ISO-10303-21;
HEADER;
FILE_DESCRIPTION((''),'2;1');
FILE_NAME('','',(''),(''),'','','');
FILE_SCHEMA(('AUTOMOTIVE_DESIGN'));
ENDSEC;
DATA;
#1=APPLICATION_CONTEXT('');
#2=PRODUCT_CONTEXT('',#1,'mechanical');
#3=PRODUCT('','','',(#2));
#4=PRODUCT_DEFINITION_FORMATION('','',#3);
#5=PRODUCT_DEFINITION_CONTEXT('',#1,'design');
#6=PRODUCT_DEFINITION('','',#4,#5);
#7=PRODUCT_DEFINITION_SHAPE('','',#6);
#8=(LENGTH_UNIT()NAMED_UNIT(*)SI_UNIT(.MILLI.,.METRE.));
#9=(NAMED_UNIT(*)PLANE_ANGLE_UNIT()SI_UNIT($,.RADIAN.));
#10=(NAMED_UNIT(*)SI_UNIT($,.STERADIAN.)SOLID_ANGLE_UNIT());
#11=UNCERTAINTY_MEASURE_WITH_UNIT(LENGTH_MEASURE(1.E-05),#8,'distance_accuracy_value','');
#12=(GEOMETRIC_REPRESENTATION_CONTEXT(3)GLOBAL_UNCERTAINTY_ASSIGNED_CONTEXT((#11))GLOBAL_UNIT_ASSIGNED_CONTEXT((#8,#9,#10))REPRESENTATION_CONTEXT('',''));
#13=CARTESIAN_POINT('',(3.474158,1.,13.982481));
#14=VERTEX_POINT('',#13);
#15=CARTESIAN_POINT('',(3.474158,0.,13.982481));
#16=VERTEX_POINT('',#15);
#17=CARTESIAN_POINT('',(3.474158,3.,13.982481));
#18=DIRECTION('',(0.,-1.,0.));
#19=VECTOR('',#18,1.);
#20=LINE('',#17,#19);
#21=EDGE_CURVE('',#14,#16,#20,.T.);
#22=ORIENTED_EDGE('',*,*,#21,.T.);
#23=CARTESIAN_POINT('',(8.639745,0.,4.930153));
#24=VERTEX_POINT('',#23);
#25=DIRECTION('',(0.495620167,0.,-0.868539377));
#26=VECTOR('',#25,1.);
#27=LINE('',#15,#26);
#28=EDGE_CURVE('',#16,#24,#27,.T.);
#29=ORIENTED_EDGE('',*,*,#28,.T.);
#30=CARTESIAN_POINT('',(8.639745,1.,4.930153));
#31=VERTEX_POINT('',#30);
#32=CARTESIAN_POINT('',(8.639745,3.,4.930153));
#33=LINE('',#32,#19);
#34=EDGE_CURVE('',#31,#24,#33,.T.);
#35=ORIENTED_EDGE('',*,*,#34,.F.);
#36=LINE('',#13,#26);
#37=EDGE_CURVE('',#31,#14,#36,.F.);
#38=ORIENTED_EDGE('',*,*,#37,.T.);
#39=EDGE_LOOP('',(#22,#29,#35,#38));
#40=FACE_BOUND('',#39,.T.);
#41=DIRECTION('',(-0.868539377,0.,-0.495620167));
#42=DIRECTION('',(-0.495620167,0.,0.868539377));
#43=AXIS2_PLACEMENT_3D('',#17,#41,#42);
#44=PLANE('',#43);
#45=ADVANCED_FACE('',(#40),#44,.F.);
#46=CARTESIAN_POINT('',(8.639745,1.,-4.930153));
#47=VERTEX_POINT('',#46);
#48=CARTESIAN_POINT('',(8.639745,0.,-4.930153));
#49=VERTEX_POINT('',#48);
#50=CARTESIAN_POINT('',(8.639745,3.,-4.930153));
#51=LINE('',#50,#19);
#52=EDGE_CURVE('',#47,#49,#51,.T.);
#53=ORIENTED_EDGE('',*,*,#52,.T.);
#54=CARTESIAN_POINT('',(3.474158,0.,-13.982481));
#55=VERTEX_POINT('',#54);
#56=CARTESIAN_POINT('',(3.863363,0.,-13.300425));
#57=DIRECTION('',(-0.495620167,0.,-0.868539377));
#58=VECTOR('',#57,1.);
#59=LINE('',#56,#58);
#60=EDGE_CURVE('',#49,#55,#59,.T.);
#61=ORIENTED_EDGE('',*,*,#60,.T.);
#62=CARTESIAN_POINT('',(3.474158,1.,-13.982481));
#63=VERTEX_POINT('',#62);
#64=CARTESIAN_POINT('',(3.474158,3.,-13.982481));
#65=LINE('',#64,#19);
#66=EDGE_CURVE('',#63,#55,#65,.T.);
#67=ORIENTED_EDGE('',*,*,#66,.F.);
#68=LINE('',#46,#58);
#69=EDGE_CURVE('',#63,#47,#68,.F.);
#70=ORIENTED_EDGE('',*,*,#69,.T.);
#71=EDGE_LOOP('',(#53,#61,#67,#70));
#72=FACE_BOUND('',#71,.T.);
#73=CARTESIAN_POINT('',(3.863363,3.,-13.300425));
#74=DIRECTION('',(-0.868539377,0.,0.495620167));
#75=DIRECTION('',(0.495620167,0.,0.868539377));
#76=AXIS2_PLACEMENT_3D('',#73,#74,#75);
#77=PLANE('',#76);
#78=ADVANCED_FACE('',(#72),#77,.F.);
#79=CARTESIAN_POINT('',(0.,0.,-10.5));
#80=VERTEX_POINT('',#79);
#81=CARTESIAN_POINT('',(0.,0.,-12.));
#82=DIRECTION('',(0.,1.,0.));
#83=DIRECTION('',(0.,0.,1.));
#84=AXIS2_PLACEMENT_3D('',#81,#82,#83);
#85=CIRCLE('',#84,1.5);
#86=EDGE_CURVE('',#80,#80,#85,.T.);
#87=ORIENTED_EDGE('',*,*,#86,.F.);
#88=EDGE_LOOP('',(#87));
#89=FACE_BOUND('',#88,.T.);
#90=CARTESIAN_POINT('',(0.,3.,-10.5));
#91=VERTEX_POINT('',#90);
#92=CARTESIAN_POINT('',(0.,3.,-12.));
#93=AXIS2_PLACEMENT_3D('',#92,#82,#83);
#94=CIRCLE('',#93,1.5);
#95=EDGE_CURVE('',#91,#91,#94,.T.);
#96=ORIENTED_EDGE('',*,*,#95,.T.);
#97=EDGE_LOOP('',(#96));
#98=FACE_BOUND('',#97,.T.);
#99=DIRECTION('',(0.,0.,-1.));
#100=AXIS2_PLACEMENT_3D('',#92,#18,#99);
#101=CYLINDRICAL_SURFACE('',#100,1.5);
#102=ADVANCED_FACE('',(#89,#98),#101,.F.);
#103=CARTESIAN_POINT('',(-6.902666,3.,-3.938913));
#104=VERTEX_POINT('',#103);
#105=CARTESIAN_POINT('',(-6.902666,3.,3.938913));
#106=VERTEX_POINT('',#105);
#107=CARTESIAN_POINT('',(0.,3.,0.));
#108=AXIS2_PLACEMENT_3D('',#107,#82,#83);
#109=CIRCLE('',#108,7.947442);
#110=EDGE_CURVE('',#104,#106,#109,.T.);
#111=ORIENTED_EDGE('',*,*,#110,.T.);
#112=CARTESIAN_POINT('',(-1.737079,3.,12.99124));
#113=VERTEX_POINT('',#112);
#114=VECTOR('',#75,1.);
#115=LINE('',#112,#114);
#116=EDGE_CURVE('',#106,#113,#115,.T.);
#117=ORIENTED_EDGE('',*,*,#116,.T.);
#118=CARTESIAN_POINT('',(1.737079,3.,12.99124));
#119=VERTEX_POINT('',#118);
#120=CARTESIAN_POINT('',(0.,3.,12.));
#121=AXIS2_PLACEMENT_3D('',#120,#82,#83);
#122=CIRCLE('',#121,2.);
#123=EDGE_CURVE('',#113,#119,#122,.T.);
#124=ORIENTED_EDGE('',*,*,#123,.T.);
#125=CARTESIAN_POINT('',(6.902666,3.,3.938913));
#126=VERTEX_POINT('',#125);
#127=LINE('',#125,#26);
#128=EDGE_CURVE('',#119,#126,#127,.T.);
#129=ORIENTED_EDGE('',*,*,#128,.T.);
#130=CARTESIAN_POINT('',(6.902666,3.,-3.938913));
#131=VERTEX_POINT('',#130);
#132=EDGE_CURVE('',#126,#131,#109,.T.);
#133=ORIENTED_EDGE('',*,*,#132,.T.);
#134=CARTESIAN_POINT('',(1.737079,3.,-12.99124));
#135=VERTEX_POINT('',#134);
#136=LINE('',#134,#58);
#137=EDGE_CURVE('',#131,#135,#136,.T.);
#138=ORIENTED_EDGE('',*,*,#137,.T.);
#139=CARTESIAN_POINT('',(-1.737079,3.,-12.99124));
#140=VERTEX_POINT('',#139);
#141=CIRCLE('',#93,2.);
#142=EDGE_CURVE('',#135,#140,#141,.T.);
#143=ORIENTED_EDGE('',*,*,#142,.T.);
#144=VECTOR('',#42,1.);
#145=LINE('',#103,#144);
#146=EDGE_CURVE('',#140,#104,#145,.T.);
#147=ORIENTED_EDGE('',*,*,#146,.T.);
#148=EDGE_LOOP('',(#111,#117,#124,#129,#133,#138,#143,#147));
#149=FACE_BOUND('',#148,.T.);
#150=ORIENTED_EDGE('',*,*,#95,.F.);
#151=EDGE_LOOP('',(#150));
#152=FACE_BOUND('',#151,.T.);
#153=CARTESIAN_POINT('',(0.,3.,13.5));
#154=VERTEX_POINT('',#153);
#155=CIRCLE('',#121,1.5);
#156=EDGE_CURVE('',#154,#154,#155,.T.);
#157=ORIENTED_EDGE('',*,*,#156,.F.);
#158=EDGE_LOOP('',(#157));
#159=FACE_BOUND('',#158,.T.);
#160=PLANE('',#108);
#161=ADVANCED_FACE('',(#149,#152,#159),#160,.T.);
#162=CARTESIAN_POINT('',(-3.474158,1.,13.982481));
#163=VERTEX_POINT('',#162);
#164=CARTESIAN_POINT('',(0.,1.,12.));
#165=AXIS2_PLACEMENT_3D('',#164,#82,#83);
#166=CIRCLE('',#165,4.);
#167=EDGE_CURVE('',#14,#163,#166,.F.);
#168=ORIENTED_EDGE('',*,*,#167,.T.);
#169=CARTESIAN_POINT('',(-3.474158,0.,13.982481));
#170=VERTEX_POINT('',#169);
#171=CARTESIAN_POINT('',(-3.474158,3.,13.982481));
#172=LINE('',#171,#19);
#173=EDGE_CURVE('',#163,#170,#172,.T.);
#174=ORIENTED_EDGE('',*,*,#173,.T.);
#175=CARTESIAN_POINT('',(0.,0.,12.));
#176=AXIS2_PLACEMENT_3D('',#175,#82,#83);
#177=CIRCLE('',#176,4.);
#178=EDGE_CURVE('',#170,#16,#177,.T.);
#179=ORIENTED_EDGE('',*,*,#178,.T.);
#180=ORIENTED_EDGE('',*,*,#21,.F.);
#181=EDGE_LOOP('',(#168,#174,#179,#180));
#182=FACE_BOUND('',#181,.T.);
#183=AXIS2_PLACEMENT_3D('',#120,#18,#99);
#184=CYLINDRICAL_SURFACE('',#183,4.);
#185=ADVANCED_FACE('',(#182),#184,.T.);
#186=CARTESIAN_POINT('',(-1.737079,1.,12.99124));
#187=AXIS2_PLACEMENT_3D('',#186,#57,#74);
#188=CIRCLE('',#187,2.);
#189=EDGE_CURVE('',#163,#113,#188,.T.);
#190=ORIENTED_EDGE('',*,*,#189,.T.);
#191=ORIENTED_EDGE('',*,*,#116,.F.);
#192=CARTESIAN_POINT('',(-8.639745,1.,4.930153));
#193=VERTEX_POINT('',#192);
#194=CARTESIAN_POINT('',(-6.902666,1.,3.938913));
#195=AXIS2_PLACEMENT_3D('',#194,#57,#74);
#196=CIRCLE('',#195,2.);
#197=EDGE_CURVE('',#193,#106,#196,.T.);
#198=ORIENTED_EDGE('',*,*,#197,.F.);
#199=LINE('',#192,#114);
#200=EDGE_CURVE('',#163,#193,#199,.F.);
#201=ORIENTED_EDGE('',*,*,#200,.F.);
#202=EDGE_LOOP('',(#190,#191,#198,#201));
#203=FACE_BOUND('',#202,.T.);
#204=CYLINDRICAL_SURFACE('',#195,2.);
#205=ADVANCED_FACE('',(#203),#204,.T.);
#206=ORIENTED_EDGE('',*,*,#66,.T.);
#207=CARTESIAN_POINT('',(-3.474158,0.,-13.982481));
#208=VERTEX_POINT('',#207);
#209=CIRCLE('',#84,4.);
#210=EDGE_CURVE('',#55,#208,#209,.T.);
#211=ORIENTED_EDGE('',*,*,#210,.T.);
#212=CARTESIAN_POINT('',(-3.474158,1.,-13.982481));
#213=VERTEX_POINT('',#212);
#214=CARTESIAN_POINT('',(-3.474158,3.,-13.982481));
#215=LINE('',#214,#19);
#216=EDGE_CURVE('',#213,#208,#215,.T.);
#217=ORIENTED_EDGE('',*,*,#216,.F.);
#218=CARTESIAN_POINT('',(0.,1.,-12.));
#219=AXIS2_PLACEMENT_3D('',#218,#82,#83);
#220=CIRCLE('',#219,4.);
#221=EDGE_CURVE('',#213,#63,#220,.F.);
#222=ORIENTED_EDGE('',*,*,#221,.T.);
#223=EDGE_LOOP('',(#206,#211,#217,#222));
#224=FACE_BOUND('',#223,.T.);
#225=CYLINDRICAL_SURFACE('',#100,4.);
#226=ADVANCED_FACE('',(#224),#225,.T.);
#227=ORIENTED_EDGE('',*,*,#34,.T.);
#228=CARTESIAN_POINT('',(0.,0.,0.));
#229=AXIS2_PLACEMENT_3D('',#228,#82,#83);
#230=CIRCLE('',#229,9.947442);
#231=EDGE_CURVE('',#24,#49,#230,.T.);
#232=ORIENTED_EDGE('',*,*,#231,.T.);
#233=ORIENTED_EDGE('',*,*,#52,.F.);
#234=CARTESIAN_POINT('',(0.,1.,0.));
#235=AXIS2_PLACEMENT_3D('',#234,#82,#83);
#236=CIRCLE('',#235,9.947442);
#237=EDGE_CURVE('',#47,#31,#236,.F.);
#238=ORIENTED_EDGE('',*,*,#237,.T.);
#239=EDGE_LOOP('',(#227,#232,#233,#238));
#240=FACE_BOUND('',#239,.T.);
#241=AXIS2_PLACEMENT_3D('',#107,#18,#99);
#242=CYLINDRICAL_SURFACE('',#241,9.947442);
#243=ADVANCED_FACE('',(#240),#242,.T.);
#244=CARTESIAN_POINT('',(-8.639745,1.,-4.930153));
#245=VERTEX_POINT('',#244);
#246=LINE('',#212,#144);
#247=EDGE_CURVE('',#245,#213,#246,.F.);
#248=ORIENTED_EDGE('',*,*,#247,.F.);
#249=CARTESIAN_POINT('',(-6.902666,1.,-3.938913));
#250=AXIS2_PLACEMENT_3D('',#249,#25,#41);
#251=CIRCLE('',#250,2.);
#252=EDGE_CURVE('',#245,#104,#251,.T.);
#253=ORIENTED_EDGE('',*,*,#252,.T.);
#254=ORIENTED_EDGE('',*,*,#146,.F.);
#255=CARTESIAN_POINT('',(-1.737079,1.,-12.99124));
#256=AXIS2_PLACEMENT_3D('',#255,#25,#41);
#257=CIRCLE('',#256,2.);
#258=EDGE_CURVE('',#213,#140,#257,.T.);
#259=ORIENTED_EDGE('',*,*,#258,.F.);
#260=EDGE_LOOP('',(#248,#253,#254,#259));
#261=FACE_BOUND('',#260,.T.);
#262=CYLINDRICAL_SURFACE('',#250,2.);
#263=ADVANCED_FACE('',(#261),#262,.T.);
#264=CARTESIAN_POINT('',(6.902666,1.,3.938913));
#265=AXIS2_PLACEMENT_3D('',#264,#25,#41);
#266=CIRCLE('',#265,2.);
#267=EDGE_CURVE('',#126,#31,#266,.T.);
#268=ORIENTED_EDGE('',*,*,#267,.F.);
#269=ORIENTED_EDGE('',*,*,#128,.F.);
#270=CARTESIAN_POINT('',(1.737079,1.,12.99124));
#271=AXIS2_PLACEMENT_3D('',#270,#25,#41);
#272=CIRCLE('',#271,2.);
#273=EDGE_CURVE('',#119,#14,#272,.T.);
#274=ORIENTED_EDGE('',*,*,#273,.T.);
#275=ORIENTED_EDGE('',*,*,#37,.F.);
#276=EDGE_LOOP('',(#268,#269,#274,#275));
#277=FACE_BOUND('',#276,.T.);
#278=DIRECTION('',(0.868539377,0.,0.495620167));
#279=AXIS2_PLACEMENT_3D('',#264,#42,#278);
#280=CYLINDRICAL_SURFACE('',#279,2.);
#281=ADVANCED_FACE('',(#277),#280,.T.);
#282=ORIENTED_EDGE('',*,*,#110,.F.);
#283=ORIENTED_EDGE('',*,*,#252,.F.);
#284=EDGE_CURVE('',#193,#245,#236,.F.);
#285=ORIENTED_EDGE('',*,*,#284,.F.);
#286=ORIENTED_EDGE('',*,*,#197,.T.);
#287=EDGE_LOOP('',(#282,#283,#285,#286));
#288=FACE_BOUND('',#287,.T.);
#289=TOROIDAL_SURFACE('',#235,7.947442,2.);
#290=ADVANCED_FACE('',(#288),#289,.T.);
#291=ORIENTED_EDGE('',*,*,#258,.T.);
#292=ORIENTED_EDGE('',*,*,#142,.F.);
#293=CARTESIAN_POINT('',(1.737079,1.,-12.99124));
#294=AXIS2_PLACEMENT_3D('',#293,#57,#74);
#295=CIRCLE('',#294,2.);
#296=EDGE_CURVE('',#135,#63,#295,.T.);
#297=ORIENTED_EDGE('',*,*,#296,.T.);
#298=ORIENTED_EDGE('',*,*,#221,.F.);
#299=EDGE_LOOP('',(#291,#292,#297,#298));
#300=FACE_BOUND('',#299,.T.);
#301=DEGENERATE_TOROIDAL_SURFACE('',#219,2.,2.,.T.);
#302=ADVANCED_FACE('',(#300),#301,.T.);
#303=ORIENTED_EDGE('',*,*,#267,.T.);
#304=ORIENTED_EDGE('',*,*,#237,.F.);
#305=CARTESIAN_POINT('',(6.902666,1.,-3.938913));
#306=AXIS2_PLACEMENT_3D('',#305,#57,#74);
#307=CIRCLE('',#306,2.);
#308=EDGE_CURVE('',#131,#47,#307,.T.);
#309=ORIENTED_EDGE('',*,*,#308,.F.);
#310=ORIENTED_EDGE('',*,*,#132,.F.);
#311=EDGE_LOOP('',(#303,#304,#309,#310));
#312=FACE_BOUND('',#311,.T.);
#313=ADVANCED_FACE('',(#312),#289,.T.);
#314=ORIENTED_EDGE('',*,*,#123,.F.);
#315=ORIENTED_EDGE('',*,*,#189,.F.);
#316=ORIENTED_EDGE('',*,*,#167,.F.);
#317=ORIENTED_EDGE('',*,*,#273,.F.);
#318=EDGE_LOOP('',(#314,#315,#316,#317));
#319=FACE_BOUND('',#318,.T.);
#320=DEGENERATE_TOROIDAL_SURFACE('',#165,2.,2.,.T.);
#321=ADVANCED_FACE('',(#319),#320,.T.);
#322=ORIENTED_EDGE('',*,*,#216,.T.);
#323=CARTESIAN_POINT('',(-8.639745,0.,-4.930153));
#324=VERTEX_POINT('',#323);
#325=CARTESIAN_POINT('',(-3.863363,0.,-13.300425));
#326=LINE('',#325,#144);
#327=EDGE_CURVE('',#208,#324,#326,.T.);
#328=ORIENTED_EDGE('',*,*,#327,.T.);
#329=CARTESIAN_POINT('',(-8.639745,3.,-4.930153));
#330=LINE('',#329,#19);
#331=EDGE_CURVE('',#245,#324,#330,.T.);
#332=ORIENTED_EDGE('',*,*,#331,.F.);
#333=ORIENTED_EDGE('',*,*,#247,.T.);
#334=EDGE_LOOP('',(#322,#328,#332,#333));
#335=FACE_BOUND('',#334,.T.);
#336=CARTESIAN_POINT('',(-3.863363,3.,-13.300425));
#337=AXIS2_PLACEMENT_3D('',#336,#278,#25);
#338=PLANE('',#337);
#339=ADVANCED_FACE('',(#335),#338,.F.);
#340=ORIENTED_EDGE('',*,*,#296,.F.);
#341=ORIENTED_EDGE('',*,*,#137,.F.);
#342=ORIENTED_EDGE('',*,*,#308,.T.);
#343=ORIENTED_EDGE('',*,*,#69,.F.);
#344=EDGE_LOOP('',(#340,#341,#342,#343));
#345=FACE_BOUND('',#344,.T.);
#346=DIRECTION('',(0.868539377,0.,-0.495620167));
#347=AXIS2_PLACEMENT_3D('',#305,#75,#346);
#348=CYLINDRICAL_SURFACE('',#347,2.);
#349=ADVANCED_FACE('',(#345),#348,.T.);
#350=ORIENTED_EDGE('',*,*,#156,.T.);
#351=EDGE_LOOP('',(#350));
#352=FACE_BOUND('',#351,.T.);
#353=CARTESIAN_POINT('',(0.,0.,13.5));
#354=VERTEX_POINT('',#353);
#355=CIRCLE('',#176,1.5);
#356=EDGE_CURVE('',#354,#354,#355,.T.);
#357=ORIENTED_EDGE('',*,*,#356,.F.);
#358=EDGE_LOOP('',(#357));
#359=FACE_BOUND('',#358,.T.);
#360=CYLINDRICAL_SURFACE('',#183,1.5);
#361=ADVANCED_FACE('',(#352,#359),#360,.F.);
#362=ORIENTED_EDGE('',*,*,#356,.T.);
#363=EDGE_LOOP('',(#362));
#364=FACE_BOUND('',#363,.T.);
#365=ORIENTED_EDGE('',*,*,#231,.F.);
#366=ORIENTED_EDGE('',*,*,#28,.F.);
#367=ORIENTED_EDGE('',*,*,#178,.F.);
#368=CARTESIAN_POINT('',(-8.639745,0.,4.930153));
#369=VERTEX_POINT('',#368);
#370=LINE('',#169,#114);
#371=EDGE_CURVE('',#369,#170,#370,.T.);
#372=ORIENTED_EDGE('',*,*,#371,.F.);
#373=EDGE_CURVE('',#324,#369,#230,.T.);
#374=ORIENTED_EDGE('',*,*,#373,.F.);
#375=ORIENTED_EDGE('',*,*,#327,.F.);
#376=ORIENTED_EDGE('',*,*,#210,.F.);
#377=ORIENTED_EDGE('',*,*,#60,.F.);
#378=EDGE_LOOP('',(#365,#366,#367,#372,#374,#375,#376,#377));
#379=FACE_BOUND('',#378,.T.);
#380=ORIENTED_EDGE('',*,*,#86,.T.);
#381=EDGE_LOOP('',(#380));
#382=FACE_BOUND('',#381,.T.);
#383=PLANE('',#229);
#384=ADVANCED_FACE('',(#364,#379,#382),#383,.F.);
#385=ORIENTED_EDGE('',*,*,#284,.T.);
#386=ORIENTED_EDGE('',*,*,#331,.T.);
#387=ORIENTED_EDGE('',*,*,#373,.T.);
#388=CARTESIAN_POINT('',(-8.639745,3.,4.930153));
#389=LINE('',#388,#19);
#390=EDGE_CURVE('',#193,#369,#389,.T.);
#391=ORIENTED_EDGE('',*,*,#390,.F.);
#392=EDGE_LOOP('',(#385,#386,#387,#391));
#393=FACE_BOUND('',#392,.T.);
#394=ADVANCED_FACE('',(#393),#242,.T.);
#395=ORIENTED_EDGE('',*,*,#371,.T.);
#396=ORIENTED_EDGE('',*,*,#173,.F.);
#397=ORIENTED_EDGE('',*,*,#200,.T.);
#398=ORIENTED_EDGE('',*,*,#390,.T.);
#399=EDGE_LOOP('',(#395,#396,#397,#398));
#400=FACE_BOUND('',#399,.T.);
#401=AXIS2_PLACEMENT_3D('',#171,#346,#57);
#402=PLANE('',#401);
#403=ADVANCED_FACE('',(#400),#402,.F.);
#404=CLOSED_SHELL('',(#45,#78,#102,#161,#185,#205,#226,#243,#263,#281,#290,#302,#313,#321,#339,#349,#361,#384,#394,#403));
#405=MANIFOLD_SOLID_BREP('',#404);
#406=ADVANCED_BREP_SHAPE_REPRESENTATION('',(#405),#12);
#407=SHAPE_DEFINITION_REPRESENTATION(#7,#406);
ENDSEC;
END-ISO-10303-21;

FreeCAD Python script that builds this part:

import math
import FreeCAD as App
import Part
import Sketcher

V = App.Vector
Q = App.Units.Quantity


def edges_at(feature, points):
    """Names of the edges that pass closest to the given points."""
    edges = feature.Shape.Edges
    near = lambda p: min(range(len(edges)), key=lambda i: edges[i].distToShape(Part.Vertex(*p))[0])
    return sorted({f"Edge{near(p) + 1}" for p in points})

doc = App.newDocument("Part")
params = doc.addObject("Spreadsheet::Sheet", "Params")
for row, (alias, value) in enumerate([
    ("sketch1_diameter", "3 mm"),
    ("sketch1_radius", "4 mm"),
    ("pad1_length", "3 mm"),
    ("fillet_radius", "2 mm"),
], start=1):
    params.set(f"A{row}", alias)
    params.set(f"B{row}", "=" + value)
    params.setAlias(f"B{row}", alias)

body = doc.addObject("PartDesign::Body", "Body")

# Sketch on XZ plane
sketch1 = body.newObject("Sketcher::SketchObject", "Sketch")
sketch1.AttachmentSupport = (doc.getObject("XZ_Plane"), [""])
sketch1.MapMode = "FlatFace"
sketch1.addGeometry([
    Part.LineSegment(V(-3.9, -13.3, 0), V(-8.6, -4.9, 0)),  # 0
    Part.ArcOfCircle(Part.Circle(V(0, 0, 0), V(0, 0, 1), 9.9), math.radians(150), math.radians(210)),  # 1
    Part.LineSegment(V(-8.6, 4.9, 0), V(-3.5, 14, 0)),  # 2
    Part.ArcOfCircle(Part.Circle(V(0, 12, 0), V(0, 0, 1), 4), math.radians(30), math.radians(150)),  # 3
    Part.LineSegment(V(3.5, 14, 0), V(8.6, 4.9, 0)),  # 4
    Part.ArcOfCircle(Part.Circle(V(0, 0, 0), V(0, 0, 1), 9.9), math.radians(-30), math.radians(30)),  # 5
    Part.LineSegment(V(8.6, -4.9, 0), V(3.9, -13.3, 0)),  # 6
    Part.LineSegment(V(3.9, -13.3, 0), V(3.5, -14, 0)),  # 7
    Part.ArcOfCircle(Part.Circle(V(0, -12, 0), V(0, 0, 1), 4), math.radians(-150), math.radians(-30)),  # 8
    Part.LineSegment(V(-3.5, -14, 0), V(-3.9, -13.3, 0)),  # 9
    Part.Circle(V(0, 12, 0), V(0, 0, 1), 1.5),  # 10
    Part.Circle(V(0, -12, 0), V(0, 0, 1), 1.5),  # 11
], False)
sketch1.addConstraint([
    Sketcher.Constraint("Tangent", 0, 2, 1, 2),
    Sketcher.Constraint("Tangent", 1, 1, 2, 1),
    Sketcher.Constraint("Tangent", 2, 2, 3, 2),
    Sketcher.Constraint("Tangent", 3, 1, 4, 1),
    Sketcher.Constraint("Tangent", 4, 2, 5, 2),
    Sketcher.Constraint("Tangent", 5, 1, 6, 1),
    Sketcher.Constraint("Coincident", 6, 2, 7, 1),
    Sketcher.Constraint("Tangent", 7, 2, 8, 2),
    Sketcher.Constraint("Tangent", 8, 1, 9, 1),
    Sketcher.Constraint("Coincident", 9, 2, 0, 1),
    Sketcher.Constraint("Coincident", 1, 3, -1, 1),
    Sketcher.Constraint("Coincident", 5, 3, -1, 1),
    Sketcher.Constraint("Coincident", 10, 3, 3, 3),
    Sketcher.Constraint("Coincident", 11, 3, 8, 3),
    Sketcher.Constraint("Equal", 1, 5),
    Sketcher.Constraint("Equal", 3, 8),
    Sketcher.Constraint("Equal", 10, 11),
    Sketcher.Constraint("Symmetric", 3, 3, 8, 3, -1, 1),
    Sketcher.Constraint("Symmetric", 7, 2, 8, 1, -2),
    Sketcher.Constraint("Parallel", 0, 4),
    Sketcher.Constraint("Horizontal", 6, 2, 9, 2),
    Sketcher.Constraint("Diameter", 10, Q("3 mm")),
    Sketcher.Constraint("Radius", 3, Q("4 mm")),
    Sketcher.Constraint("DistanceY", -1, 1, 3, 3, Q("12 mm")),
    Sketcher.Constraint("Radius", 1, Q("9.947442 mm")),
    Sketcher.Constraint("Distance", 0, Q("9.637182 mm")),
])
sketch1.setExpression("Constraints[21]", "Params.sketch1_diameter")
sketch1.setExpression("Constraints[22]", "Params.sketch1_radius")
pad1 = body.newObject("PartDesign::Pad", "Pad")
pad1.Profile = sketch1
pad1.setExpression("Length", "Params.pad1_length")
pad1.Reversed = True
doc.recompute()

fillet = body.newObject("PartDesign::Fillet", "Fillet")
fillet.Base = (pad1, edges_at(pad1, [
    (0, 3, 16),
    (6.057, 3, 9.456),
    (9.947, 3, 0),
    (6.252, 3, -9.115),
    (0, 3, -16),
    (-6.252, 3, -9.115),
    (-9.947, 3, 0),
    (-6.057, 3, 9.456),
]))
fillet.setExpression("Radius", "Params.fillet_radius")

doc.recompute()
